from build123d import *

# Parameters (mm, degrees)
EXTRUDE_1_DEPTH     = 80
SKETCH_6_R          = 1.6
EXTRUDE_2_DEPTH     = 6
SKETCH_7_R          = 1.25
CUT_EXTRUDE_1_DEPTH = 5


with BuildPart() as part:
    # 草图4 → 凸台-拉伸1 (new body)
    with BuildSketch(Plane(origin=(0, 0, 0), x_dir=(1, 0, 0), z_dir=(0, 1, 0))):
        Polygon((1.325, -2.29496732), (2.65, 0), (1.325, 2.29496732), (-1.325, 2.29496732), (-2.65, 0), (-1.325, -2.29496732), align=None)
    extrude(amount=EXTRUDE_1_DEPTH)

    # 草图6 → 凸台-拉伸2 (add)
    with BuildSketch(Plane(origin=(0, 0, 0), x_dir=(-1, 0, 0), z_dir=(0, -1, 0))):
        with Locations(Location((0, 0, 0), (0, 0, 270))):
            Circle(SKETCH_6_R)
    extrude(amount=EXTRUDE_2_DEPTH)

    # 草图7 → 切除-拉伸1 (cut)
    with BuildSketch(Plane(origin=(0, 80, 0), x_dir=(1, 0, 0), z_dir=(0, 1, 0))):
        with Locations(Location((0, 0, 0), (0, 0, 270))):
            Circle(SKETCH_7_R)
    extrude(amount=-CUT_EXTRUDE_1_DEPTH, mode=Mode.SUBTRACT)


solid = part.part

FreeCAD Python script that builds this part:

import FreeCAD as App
import Part
import Sketcher
from FreeCAD import Vector
Q = App.Units.Quantity


def add_polygon(sketch, points):
    """Adds a closed chain of lines whose ends are joined by coincident constraints."""
    first, n = sketch.GeometryCount, len(points)
    for a, b in zip(points, points[1:] + points[:1]):
        sketch.addGeometry(Part.LineSegment(App.Vector(*a, 0), App.Vector(*b, 0)), False)
    for i in range(n):
        sketch.addConstraint(Sketcher.Constraint("Coincident", first + i, 2, first + (i + 1) % n, 1))

doc = App.newDocument("Part")
params = doc.addObject("Spreadsheet::Sheet", "Params")
for row, (alias, value) in enumerate([
    ("sketch1_width", "2.65 mm"),
    ("pad1_length", "80 mm"),
    ("sketch2_diameter", "3.2 mm"),
    ("pad2_length", "6 mm"),
    ("sketch3_diameter", "2.5 mm"),
    ("pocket1_length", "5 mm"),
], start=1):
    params.set(f"A{row}", alias)
    params.set(f"B{row}", "=" + value)
    params.setAlias(f"B{row}", alias)

body = doc.addObject("PartDesign::Body", "Body")

# Sketch on XZ plane
sketch1 = body.newObject("Sketcher::SketchObject", "Sketch")
sketch1.AttachmentSupport = (doc.getObject("XZ_Plane"), [""])
sketch1.MapMode = "FlatFace"
add_polygon(sketch1, [(1.3, 2.3), (2.6, 0), (1.3, -2.3), (-1.3, -2.3), (-2.6, 0), (-1.3, 2.3)])  # lines 0-5
sketch1.addConstraint([
    Sketcher.Constraint("Horizontal", 2),
    Sketcher.Constraint("Horizontal", 5),
    Sketcher.Constraint("Symmetric", 0, 2, 3, 2, -1, 1),
    Sketcher.Constraint("Symmetric", 1, 2, 4, 2, -1, 1),
    Sketcher.Constraint("PointOnObject", 0, 2, -1),
    Sketcher.Constraint("Parallel", 0, 3),
    Sketcher.Constraint("Vertical", 2, 2, 4, 2),
    Sketcher.Constraint("Angle", 0, Q("-60 deg")),
    Sketcher.Constraint("DistanceX", 2, 2, 2, 1, Q("2.65 mm")),
    Sketcher.Constraint("DistanceX", 3, 2, 0, 2, Q("5.3 mm")),
])
sketch1.setExpression("Constraints[14]", "Params.sketch1_width")
pad1 = body.newObject("PartDesign::Pad", "Pad")
pad1.Profile = sketch1
pad1.setExpression("Length", "Params.pad1_length")
pad1.Reversed = True

# Sketch on XZ plane
sketch2 = body.newObject("Sketcher::SketchObject", "Sketch001")
sketch2.AttachmentSupport = (doc.getObject("XZ_Plane"), [""])
sketch2.MapMode = "FlatFace"
sketch2.addGeometry(Part.Circle(Vector(0, 0, 0), Vector(0, 0, 1), 1.6), False)
sketch2.addConstraint([
    Sketcher.Constraint("Coincident", 0, 3, -1, 1),
    Sketcher.Constraint("Diameter", 0, Q("3.2 mm")),
])
sketch2.setExpression("Constraints[1]", "Params.sketch2_diameter")
pad2 = body.newObject("PartDesign::Pad", "Pad001")
pad2.Profile = sketch2
pad2.setExpression("Length", "Params.pad2_length")

# Sketch on XZ plane
sketch3 = body.newObject("Sketcher::SketchObject", "Sketch002")
sketch3.AttachmentSupport = (doc.getObject("XZ_Plane"), [""])
sketch3.MapMode = "FlatFace"
sketch3.AttachmentOffset = App.Placement(Vector(0, 0, -80), App.Rotation())
sketch3.addGeometry(Part.Circle(Vector(0, 0, 0), Vector(0, 0, 1), 1.2), False)
sketch3.addConstraint([
    Sketcher.Constraint("Coincident", 0, 3, -1, 1),
    Sketcher.Constraint("Diameter", 0, Q("2.5 mm")),
])
sketch3.setExpression("Constraints[1]", "Params.sketch3_diameter")
pocket1 = body.newObject("PartDesign::Pocket", "Pocket")
pocket1.Profile = sketch3
pocket1.setExpression("Length", "Params.pocket1_length")
pocket1.Reversed = True

doc.recompute()
